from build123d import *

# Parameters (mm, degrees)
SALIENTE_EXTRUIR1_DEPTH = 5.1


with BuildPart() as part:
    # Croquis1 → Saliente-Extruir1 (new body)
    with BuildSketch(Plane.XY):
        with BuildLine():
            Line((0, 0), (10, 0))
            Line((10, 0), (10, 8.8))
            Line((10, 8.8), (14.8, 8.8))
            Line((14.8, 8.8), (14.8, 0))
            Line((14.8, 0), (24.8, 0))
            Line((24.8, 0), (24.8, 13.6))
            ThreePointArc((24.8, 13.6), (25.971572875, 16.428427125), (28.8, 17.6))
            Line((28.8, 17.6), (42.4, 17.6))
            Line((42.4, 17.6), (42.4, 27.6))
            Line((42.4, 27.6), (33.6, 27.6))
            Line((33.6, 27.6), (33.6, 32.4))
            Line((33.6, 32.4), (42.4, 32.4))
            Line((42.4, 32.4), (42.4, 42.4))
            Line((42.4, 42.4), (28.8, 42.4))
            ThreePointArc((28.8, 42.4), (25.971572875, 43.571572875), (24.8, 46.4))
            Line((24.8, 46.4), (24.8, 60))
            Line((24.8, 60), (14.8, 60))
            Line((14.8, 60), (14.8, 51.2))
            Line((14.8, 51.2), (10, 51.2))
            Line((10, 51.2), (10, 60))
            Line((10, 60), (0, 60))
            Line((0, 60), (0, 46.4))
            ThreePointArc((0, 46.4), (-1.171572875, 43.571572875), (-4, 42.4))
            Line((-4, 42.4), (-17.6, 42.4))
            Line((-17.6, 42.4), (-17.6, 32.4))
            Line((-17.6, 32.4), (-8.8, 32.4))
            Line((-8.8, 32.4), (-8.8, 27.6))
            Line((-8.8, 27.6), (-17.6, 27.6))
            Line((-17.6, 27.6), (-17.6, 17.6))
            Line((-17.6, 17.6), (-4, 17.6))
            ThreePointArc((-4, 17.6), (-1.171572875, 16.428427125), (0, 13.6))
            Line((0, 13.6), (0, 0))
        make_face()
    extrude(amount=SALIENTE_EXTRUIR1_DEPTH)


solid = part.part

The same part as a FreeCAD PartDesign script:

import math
import FreeCAD as App
import Part
import Sketcher

V = App.Vector
Q = App.Units.Quantity

doc = App.newDocument("Part")
params = doc.addObject("Spreadsheet::Sheet", "Params")
for row, (alias, value) in enumerate([
    ("sketch1_radius", "4 mm"),
    ("sketch1_width", "10 mm"),
    ("sketch1_width2", "4.8 mm"),
    ("sketch1_width3", "13.6 mm"),
    ("sketch1_width4", "8.8 mm"),
    ("pad1_length", "5.1 mm"),
], start=1):
    params.set(f"A{row}", alias)
    params.set(f"B{row}", "=" + value)
    params.setAlias(f"B{row}", alias)

body = doc.addObject("PartDesign::Body", "Body")

# Sketch on XY plane
sketch1 = body.newObject("Sketcher::SketchObject", "Sketch")
sketch1.AttachmentSupport = (doc.getObject("XY_Plane"), [""])
sketch1.MapMode = "FlatFace"
sketch1.addGeometry([
    Part.LineSegment(V(0, 0, 0), V(10, 0, 0)),  # 0
    Part.LineSegment(V(10, 0, 0), V(10, 8.8, 0)),  # 1
    Part.LineSegment(V(10, 8.8, 0), V(14.8, 8.8, 0)),  # 2
    Part.LineSegment(V(14.8, 8.8, 0), V(14.8, 0, 0)),  # 3
    Part.LineSegment(V(14.8, 0, 0), V(24.8, 0, 0)),  # 4
    Part.LineSegment(V(24.8, 0, 0), V(24.8, 13.6, 0)),  # 5
    Part.ArcOfCircle(Part.Circle(V(28.8, 13.6, 0), V(0, 0, 1), 4), math.radians(90), math.radians(180)),  # 6
    Part.LineSegment(V(28.8, 17.6, 0), V(42.4, 17.6, 0)),  # 7
    Part.LineSegment(V(42.4, 17.6, 0), V(42.4, 27.6, 0)),  # 8
    Part.LineSegment(V(42.4, 27.6, 0), V(33.6, 27.6, 0)),  # 9
    Part.LineSegment(V(33.6, 27.6, 0), V(33.6, 32.4, 0)),  # 10
    Part.LineSegment(V(33.6, 32.4, 0), V(42.4, 32.4, 0)),  # 11
    Part.LineSegment(V(42.4, 32.4, 0), V(42.4, 42.4, 0)),  # 12
    Part.LineSegment(V(42.4, 42.4, 0), V(28.8, 42.4, 0)),  # 13
    Part.ArcOfCircle(Part.Circle(V(28.8, 46.4, 0), V(0, 0, 1), 4), math.radians(180), math.radians(270)),  # 14
    Part.LineSegment(V(24.8, 46.4, 0), V(24.8, 60, 0)),  # 15
    Part.LineSegment(V(24.8, 60, 0), V(14.8, 60, 0)),  # 16
    Part.LineSegment(V(14.8, 60, 0), V(14.8, 51.2, 0)),  # 17
    Part.LineSegment(V(14.8, 51.2, 0), V(10, 51.2, 0)),  # 18
    Part.LineSegment(V(10, 51.2, 0), V(10, 60, 0)),  # 19
    Part.LineSegment(V(10, 60, 0), V(0, 60, 0)),  # 20
    Part.LineSegment(V(0, 60, 0), V(0, 46.4, 0)),  # 21
    Part.ArcOfCircle(Part.Circle(V(-4, 46.4, 0), V(0, 0, 1), 4), math.radians(-90), math.radians(0)),  # 22
    Part.LineSegment(V(-4, 42.4, 0), V(-17.6, 42.4, 0)),  # 23
    Part.LineSegment(V(-17.6, 42.4, 0), V(-17.6, 32.4, 0)),  # 24
    Part.LineSegment(V(-17.6, 32.4, 0), V(-8.8, 32.4, 0)),  # 25
    Part.LineSegment(V(-8.8, 32.4, 0), V(-8.8, 27.6, 0)),  # 26
    Part.LineSegment(V(-8.8, 27.6, 0), V(-17.6, 27.6, 0)),  # 27
    Part.LineSegment(V(-17.6, 27.6, 0), V(-17.6, 17.6, 0)),  # 28
    Part.LineSegment(V(-17.6, 17.6, 0), V(-4, 17.6, 0)),  # 29
    Part.ArcOfCircle(Part.Circle(V(-4, 13.6, 0), V(0, 0, 1), 4), math.radians(0), math.radians(90)),  # 30
    Part.LineSegment(V(0, 13.6, 0), V(0, 0, 0)),  # 31
], False)
sketch1.addConstraint([
    Sketcher.Constraint("Coincident", 0, 2, 1, 1),
    Sketcher.Constraint("Coincident", 1, 2, 2, 1),
    Sketcher.Constraint("Coincident", 2, 2, 3, 1),
    Sketcher.Constraint("Coincident", 3, 2, 4, 1),
    Sketcher.Constraint("Coincident", 4, 2, 5, 1),
    Sketcher.Constraint("Tangent", 5, 2, 6, 2),
    Sketcher.Constraint("Tangent", 6, 1, 7, 1),
    Sketcher.Constraint("Coincident", 7, 2, 8, 1),
    Sketcher.Constraint("Coincident", 8, 2, 9, 1),
    Sketcher.Constraint("Coincident", 9, 2, 10, 1),
    Sketcher.Constraint("Coincident", 10, 2, 11, 1),
    Sketcher.Constraint("Coincident", 11, 2, 12, 1),
    Sketcher.Constraint("Coincident", 12, 2, 13, 1),
    Sketcher.Constraint("Tangent", 13, 2, 14, 2),
    Sketcher.Constraint("Tangent", 14, 1, 15, 1),
    Sketcher.Constraint("Coincident", 15, 2, 16, 1),
    Sketcher.Constraint("Coincident", 16, 2, 17, 1),
    Sketcher.Constraint("Coincident", 17, 2, 18, 1),
    Sketcher.Constraint("Coincident", 18, 2, 19, 1),
    Sketcher.Constraint("Coincident", 19, 2, 20, 1),
    Sketcher.Constraint("Coincident", 20, 2, 21, 1),
    Sketcher.Constraint("Tangent", 21, 2, 22, 2),
    Sketcher.Constraint("Tangent", 22, 1, 23, 1),
    Sketcher.Constraint("Coincident", 23, 2, 24, 1),
    Sketcher.Constraint("Coincident", 24, 2, 25, 1),
    Sketcher.Constraint("Coincident", 25, 2, 26, 1),
    Sketcher.Constraint("Coincident", 26, 2, 27, 1),
    Sketcher.Constraint("Coincident", 27, 2, 28, 1),
    Sketcher.Constraint("Coincident", 28, 2, 29, 1),
    Sketcher.Constraint("Tangent", 29, 2, 30, 2),
    Sketcher.Constraint("Tangent", 30, 1, 31, 1),
    Sketcher.Constraint("Coincident", 31, 2, 0, 1),
    Sketcher.Constraint("Horizontal", 0),
    Sketcher.Constraint("Vertical", 1),
    Sketcher.Constraint("Horizontal", 2),
    Sketcher.Constraint("Vertical", 3),
    Sketcher.Constraint("Horizontal", 4),
    Sketcher.Constraint("Vertical", 5),
    Sketcher.Constraint("Horizontal", 7),
    Sketcher.Constraint("Vertical", 8),
    Sketcher.Constraint("Horizontal", 9),
    Sketcher.Constraint("Vertical", 10),
    Sketcher.Constraint("Horizontal", 11),
    Sketcher.Constraint("Vertical", 12),
    Sketcher.Constraint("Horizontal", 13),
    Sketcher.Constraint("Vertical", 15),
    Sketcher.Constraint("Horizontal", 16),
    Sketcher.Constraint("Vertical", 17),
    Sketcher.Constraint("Horizontal", 18),
    Sketcher.Constraint("Vertical", 19),
    Sketcher.Constraint("Horizontal", 20),
    Sketcher.Constraint("Vertical", 21),
    Sketcher.Constraint("Horizontal", 23),
    Sketcher.Constraint("Vertical", 24),
    Sketcher.Constraint("Horizontal", 25),
    Sketcher.Constraint("Vertical", 26),
    Sketcher.Constraint("Horizontal", 27),
    Sketcher.Constraint("Vertical", 28),
    Sketcher.Constraint("Horizontal", 29),
    Sketcher.Constraint("Vertical", 31),
    Sketcher.Constraint("Coincident", 31, 2, -1, 1),
    Sketcher.Constraint("Equal", 6, 14),
    Sketcher.Constraint("Equal", 14, 22),
    Sketcher.Constraint("Equal", 22, 30),
    Sketcher.Constraint("PointOnObject", 3, 2, -1),
    Sketcher.Constraint("PointOnObject", 20, 2, -2),
    Sketcher.Constraint("Horizontal", 14, 3, 22, 3),
    Sketcher.Constraint("Horizontal", 6, 3, 30, 3),
    Sketcher.Constraint("Horizontal", 16, 2, 19, 2),
    Sketcher.Constraint("Horizontal", 11, 2, 24, 2),
    Sketcher.Constraint("Horizontal", 9, 2, 26, 2),
    Sketcher.Constraint("Vertical", 6, 3, 14, 3),
    Sketcher.Constraint("Vertical", 8, 2, 11, 2),
    Sketcher.Constraint("Vertical", 3, 2, 16, 2),
    Sketcher.Constraint("Vertical", 1, 2, 18, 2),
    Sketcher.Constraint("Vertical", 24, 2, 27, 2),
    Sketcher.Constraint("Equal", 0, 4),
    Sketcher.Constraint("Equal", 13, 23),
    Sketcher.Constraint("Equal", 11, 25),
    Sketcher.Constraint("Equal", 27, 1),
    Sketcher.Constraint("Equal", 29, 5),
    Sketcher.Constraint("Equal", 20, 8),
    Sketcher.Constraint("Equal", 18, 10),
    Sketcher.Constraint("Equal", 8, 12),
    Sketcher.Constraint("Equal", 5, 15),
    Sketcher.Constraint("Equal", 3, 17),
    Sketcher.Constraint("Radius", 6, Q("4 mm")),
    Sketcher.Constraint("DistanceX", 0, 1, 0, 2, Q("10 mm")),
    Sketcher.Constraint("DistanceX", 2, 1, 2, 2, Q("4.8 mm")),
    Sketcher.Constraint("DistanceX", 7, 1, 7, 2, Q("13.6 mm")),
    Sketcher.Constraint("DistanceX", 9, 2, 9, 1, Q("8.8 mm")),
])
sketch1.setExpression("Constraints[86]", "Params.sketch1_radius")
sketch1.setExpression("Constraints[87]", "Params.sketch1_width")
sketch1.setExpression("Constraints[88]", "Params.sketch1_width2")
sketch1.setExpression("Constraints[89]", "Params.sketch1_width3")
sketch1.setExpression("Constraints[90]", "Params.sketch1_width4")
pad1 = body.newObject("PartDesign::Pad", "Pad")
pad1.Profile = sketch1
pad1.setExpression("Length", "Params.pad1_length")

doc.recompute()
